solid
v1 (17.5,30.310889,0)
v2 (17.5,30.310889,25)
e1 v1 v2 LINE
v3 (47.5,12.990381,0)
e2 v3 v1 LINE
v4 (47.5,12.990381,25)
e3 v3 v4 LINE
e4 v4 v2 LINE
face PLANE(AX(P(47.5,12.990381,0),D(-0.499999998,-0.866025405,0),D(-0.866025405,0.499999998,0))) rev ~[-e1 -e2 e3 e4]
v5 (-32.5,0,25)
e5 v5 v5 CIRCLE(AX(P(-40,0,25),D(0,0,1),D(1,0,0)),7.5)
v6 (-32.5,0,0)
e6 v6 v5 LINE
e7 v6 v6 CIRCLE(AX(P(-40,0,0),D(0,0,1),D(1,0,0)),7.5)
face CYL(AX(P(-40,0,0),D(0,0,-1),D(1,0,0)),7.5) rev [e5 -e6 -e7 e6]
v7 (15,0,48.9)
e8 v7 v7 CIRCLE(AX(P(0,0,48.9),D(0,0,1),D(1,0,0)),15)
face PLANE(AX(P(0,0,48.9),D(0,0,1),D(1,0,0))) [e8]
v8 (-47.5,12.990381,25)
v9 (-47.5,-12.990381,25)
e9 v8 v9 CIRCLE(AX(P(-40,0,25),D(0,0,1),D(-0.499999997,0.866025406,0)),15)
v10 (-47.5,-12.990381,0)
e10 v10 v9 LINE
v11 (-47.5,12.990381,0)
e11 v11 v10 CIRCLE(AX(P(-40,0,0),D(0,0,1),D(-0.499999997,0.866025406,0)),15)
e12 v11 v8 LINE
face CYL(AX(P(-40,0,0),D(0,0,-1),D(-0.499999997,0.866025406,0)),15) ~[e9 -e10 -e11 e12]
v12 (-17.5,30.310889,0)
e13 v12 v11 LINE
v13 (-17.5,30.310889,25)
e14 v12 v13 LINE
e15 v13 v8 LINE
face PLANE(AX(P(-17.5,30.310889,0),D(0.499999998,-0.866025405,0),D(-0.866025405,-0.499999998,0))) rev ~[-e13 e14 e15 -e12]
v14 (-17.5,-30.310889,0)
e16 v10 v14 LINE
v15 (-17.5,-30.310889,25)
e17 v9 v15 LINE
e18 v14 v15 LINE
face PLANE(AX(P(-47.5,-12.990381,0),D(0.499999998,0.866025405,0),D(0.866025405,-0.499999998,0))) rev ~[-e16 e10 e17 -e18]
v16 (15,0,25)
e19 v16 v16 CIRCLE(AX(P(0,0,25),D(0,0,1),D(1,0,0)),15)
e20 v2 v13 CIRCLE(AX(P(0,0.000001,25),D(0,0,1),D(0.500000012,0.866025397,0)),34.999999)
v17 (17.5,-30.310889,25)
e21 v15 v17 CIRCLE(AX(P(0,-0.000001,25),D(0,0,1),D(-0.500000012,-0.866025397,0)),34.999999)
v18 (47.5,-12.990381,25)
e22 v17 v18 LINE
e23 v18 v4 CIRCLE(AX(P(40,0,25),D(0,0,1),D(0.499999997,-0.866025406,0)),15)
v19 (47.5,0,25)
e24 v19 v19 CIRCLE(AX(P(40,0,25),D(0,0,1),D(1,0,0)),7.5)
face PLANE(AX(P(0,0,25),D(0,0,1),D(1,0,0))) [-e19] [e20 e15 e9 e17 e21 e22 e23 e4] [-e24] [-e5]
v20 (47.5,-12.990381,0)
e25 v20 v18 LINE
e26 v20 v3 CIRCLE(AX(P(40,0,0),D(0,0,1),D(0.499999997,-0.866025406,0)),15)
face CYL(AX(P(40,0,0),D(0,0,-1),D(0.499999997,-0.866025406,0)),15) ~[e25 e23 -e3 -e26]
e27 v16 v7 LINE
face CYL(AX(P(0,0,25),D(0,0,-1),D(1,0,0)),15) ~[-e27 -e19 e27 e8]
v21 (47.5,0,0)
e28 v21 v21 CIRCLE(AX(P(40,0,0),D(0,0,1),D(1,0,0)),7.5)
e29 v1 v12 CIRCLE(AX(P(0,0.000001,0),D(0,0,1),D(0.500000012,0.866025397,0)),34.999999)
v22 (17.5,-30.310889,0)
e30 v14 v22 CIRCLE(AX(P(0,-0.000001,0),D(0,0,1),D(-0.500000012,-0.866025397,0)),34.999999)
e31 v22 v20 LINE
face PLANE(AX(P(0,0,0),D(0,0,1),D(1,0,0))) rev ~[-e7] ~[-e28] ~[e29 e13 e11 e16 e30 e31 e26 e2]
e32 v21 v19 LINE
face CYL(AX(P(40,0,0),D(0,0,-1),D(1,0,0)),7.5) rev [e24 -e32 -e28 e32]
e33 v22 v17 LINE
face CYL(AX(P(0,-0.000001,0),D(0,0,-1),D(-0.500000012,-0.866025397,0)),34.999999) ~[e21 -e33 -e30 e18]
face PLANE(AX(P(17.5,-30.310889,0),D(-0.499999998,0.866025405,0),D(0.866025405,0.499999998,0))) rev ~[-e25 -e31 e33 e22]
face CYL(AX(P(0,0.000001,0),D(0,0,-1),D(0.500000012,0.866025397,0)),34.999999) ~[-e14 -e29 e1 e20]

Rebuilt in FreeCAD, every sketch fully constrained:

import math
import FreeCAD as App
import Part
import Sketcher
from FreeCAD import Vector
Q = App.Units.Quantity

doc = App.newDocument("Part")
body = doc.addObject("PartDesign::Body", "Body")

# Sketch on XY plane
sketch1 = body.newObject("Sketcher::SketchObject", "Sketch")
sketch1.AttachmentSupport = (doc.getObject("XY_Plane"), [""])
sketch1.MapMode = "FlatFace"
sketch1.addGeometry(Part.LineSegment(Vector(-48, -13, 0), Vector(-18, -30, 0)), False)
sketch1.addGeometry(Part.ArcOfCircle(Part.Circle(Vector(0, 0, 0), Vector(0, 0, 1), 35), math.radians(-120), math.radians(-60)), False)
sketch1.addGeometry(Part.LineSegment(Vector(18, -30, 0), Vector(48, -13, 0)), False)
sketch1.addGeometry(Part.ArcOfCircle(Part.Circle(Vector(40, 0, 0), Vector(0, 0, 1), 15), math.radians(-60), math.radians(60)), False)
sketch1.addGeometry(Part.LineSegment(Vector(48, 13, 0), Vector(18, 30, 0)), False)
sketch1.addGeometry(Part.ArcOfCircle(Part.Circle(Vector(0, 0, 0), Vector(0, 0, 1), 35), math.radians(60), math.radians(120)), False)
sketch1.addGeometry(Part.LineSegment(Vector(-18, 30, 0), Vector(-48, 13, 0)), False)
sketch1.addGeometry(Part.ArcOfCircle(Part.Circle(Vector(-40, 0, 0), Vector(0, 0, 1), 15), math.radians(120), math.radians(240)), False)
sketch1.addGeometry(Part.Circle(Vector(-40, 0, 0), Vector(0, 0, 1), 8), False)
sketch1.addGeometry(Part.Circle(Vector(40, 0, 0), Vector(0, 0, 1), 8), False)
sketch1.addConstraint(Sketcher.Constraint("Tangent", 0, 2, 1, 1))
sketch1.addConstraint(Sketcher.Constraint("Tangent", 1, 2, 2, 1))
sketch1.addConstraint(Sketcher.Constraint("Tangent", 2, 2, 3, 1))
sketch1.addConstraint(Sketcher.Constraint("Tangent", 3, 2, 4, 1))
sketch1.addConstraint(Sketcher.Constraint("Tangent", 4, 2, 5, 1))
sketch1.addConstraint(Sketcher.Constraint("Tangent", 5, 2, 6, 1))
sketch1.addConstraint(Sketcher.Constraint("Tangent", 6, 2, 7, 1))
sketch1.addConstraint(Sketcher.Constraint("Tangent", 7, 2, 0, 1))
sketch1.addConstraint(Sketcher.Constraint("Coincident", 1, 3, -1, 1))
sketch1.addConstraint(Sketcher.Constraint("Coincident", 5, 3, -1, 1))
sketch1.addConstraint(Sketcher.Constraint("Coincident", 8, 3, 7, 3))
sketch1.addConstraint(Sketcher.Constraint("Coincident", 9, 3, 3, 3))
sketch1.addConstraint(Sketcher.Constraint("Equal", 1, 5))
sketch1.addConstraint(Sketcher.Constraint("Equal", 3, 7))
sketch1.addConstraint(Sketcher.Constraint("Equal", 8, 9))
sketch1.addConstraint(Sketcher.Constraint("Symmetric", 3, 3, 7, 3, -1, 1))
sketch1.addConstraint(Sketcher.Constraint("PointOnObject", 3, 3, -1))
sketch1.addConstraint(Sketcher.Constraint("Diameter", 8, 15.0))
sketch1.addConstraint(Sketcher.Constraint("Radius", 1, 34.999999))
sketch1.addConstraint(Sketcher.Constraint("Radius", 3, 15.0))
sketch1.addConstraint(Sketcher.Constraint("Angle", 0, Q("-30 deg")))
pad1 = body.newObject("PartDesign::Pad", "Pad")
pad1.Profile = sketch1
pad1.Length = 25

# Sketch on XY plane
sketch2 = body.newObject("Sketcher::SketchObject", "Sketch001")
sketch2.AttachmentSupport = (doc.getObject("XY_Plane"), [""])
sketch2.MapMode = "FlatFace"
sketch2.AttachmentOffset = App.Placement(Vector(0, 0, 25), App.Rotation())
sketch2.addGeometry(Part.Circle(Vector(0, 0, 0), Vector(0, 0, 1), 15), False)
sketch2.addConstraint(Sketcher.Constraint("Coincident", 0, 3, -1, 1))
sketch2.addConstraint(Sketcher.Constraint("Diameter", 0, 30.0))
pad2 = body.newObject("PartDesign::Pad", "Pad001")
pad2.Profile = sketch2
pad2.Length = 23.9

doc.recompute()
